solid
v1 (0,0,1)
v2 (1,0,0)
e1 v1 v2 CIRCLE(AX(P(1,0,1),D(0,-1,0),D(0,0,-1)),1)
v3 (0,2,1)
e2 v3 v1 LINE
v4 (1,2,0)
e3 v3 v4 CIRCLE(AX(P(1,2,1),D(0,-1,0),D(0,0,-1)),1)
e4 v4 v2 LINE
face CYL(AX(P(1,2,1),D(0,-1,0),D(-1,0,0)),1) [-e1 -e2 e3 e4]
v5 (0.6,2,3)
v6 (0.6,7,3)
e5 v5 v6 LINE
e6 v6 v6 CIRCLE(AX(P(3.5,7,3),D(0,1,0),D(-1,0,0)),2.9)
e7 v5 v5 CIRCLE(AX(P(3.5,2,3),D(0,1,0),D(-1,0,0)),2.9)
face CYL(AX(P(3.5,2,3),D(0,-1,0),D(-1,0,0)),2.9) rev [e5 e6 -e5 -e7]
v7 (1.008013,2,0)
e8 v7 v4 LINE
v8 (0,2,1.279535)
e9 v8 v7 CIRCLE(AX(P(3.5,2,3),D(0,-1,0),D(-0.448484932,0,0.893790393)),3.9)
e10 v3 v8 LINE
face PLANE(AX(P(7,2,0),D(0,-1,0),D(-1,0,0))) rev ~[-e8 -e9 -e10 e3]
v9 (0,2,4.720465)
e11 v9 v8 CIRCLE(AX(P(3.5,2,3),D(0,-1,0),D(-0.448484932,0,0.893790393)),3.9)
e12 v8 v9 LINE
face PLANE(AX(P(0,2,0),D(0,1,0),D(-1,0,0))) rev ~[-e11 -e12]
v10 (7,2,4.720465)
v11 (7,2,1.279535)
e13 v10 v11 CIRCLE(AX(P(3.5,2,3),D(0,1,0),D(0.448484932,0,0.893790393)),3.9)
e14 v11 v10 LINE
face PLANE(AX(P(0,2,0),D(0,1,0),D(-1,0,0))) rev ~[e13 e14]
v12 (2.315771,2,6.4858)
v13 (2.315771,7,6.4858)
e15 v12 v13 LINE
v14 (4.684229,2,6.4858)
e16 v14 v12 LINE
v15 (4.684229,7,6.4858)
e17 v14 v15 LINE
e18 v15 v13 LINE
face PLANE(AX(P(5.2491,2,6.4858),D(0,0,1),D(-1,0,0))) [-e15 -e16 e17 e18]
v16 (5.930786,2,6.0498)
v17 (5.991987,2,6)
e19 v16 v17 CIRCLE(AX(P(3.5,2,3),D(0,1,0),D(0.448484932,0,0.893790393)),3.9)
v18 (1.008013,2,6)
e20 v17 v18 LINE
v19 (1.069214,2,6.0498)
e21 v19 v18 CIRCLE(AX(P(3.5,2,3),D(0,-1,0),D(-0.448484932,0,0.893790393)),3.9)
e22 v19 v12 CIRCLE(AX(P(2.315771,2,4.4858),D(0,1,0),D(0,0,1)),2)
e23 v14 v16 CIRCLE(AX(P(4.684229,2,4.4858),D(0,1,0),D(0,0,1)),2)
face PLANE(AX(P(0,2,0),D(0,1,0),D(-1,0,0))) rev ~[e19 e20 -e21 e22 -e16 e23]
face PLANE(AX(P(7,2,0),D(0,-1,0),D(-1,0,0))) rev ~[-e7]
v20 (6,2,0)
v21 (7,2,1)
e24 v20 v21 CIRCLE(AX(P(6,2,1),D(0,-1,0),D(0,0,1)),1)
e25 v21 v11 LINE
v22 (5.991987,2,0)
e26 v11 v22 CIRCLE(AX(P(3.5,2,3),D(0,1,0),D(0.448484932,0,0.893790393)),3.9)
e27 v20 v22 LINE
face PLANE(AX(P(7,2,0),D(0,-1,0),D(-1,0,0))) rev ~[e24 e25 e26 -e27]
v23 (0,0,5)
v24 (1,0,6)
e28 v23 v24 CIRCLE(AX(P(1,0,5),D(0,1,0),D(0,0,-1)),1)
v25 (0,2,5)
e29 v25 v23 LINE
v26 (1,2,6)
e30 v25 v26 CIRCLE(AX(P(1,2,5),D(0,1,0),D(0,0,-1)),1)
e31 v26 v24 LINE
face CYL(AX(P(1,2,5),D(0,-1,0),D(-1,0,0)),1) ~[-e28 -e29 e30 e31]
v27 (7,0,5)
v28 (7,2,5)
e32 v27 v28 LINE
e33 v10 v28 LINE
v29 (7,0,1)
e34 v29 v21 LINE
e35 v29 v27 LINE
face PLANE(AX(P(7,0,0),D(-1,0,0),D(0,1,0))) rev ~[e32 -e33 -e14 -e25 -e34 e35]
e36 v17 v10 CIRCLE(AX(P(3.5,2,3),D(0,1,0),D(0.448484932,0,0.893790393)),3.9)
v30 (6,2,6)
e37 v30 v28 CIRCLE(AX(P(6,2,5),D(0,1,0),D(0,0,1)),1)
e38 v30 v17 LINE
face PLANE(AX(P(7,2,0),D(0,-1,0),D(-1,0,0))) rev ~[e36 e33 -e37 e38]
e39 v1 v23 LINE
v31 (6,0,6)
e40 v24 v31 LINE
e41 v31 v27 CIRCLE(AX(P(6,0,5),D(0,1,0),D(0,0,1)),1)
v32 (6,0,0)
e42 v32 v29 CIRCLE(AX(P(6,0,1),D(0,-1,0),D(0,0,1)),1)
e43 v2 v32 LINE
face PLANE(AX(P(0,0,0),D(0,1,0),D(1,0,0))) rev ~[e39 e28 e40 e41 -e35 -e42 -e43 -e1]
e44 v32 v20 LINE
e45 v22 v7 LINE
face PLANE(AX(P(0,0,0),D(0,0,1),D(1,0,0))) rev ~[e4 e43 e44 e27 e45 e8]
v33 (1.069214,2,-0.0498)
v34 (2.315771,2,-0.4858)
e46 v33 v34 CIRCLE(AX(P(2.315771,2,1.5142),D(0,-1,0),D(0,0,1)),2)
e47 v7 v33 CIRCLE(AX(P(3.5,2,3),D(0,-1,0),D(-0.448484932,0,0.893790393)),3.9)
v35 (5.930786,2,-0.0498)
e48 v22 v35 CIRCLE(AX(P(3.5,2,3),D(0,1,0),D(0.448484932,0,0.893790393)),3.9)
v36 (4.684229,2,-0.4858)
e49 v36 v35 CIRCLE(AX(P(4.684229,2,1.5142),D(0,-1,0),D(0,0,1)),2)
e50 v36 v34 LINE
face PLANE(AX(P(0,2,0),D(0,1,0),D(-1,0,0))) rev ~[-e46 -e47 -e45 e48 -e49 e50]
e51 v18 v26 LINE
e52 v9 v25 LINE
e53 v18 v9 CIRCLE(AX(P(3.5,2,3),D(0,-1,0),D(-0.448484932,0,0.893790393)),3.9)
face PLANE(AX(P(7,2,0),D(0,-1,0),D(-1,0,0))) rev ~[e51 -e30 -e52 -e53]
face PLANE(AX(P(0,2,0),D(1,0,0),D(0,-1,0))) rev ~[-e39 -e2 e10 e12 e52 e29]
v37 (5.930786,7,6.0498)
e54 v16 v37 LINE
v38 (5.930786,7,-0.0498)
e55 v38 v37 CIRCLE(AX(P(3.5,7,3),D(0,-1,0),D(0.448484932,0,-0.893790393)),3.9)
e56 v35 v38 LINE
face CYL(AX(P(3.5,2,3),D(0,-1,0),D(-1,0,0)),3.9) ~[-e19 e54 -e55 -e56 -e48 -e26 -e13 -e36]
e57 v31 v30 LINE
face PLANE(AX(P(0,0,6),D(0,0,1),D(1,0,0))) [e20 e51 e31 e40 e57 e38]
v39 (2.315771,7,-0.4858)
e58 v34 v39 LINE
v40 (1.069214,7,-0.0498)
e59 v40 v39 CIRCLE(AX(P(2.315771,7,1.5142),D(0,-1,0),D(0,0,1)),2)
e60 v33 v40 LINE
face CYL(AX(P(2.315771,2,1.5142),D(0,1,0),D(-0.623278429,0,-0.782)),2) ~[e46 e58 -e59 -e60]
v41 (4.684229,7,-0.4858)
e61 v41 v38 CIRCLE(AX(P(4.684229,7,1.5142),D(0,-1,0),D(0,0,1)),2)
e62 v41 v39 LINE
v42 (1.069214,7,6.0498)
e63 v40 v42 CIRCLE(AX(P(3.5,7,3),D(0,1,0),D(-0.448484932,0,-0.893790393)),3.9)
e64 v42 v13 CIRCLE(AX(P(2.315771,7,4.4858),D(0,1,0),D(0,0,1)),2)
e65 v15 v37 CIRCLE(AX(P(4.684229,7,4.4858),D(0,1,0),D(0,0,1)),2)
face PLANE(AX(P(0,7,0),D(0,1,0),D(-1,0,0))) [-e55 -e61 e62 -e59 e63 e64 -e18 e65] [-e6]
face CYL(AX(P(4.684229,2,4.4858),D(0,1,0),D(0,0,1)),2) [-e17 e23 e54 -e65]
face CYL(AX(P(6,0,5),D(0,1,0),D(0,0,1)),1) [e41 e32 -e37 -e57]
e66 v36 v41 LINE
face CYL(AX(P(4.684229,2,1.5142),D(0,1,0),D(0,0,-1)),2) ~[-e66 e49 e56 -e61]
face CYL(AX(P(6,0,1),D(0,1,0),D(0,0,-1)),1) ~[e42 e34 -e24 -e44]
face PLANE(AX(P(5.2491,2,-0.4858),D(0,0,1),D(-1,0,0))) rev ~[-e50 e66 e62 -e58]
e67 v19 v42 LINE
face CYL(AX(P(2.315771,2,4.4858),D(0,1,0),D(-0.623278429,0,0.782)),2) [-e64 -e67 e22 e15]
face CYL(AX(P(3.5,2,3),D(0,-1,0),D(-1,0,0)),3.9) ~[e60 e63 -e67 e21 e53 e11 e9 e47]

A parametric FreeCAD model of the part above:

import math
import FreeCAD as App
import Part
import Sketcher
from FreeCAD import Vector


def edges_at(feature, points):
    """Names of the edges that pass closest to the given points."""
    edges = feature.Shape.Edges
    near = lambda p: min(range(len(edges)), key=lambda i: edges[i].distToShape(Part.Vertex(*p))[0])
    return sorted({f"Edge{near(p) + 1}" for p in points})

doc = App.newDocument("Part")
params = doc.addObject("Spreadsheet::Sheet", "Params")
for row, (alias, value) in enumerate([
    ("sketch1_width", "7 mm"),
    ("sketch1_height", "2 mm"),
    ("pad1_length", "6 mm"),
    ("sketch2_diameter", "5.8 mm"),
    ("sketch2_radius", "3.9 mm"),
    ("pad2_length", "5 mm"),
    ("fillet_radius", "1 mm"),
    ("fillet2_radius", "2 mm"),
], start=1):
    params.set(f"A{row}", alias)
    params.set(f"B{row}", "=" + value)
    params.setAlias(f"B{row}", alias)

body = doc.addObject("PartDesign::Body", "Body")

# Sketch on XY plane
sketch1 = body.newObject("Sketcher::SketchObject", "Sketch")
sketch1.AttachmentSupport = (doc.getObject("XY_Plane"), [""])
sketch1.MapMode = "FlatFace"
sketch1.addGeometry([
    Part.LineSegment(Vector(0, 2, 0), Vector(0, 0, 0)),
    Part.LineSegment(Vector(0, 0, 0), Vector(7, 0, 0)),
    Part.LineSegment(Vector(7, 0, 0), Vector(7, 2, 0)),
    Part.LineSegment(Vector(7, 2, 0), Vector(0, 2, 0)),
], False)
sketch1.addConstraint([
    Sketcher.Constraint("Coincident", 0, 2, 1, 1),
    Sketcher.Constraint("Coincident", 1, 2, 2, 1),
    Sketcher.Constraint("Coincident", 2, 2, 3, 1),
    Sketcher.Constraint("Coincident", 3, 2, 0, 1),
    Sketcher.Constraint("Vertical", 0),
    Sketcher.Constraint("Horizontal", 1),
    Sketcher.Constraint("Vertical", 2),
    Sketcher.Constraint("Horizontal", 3),
    Sketcher.Constraint("Coincident", 0, 2, -1, 1),
    Sketcher.Constraint("DistanceX", 1, 1, 1, 2, 7.0),
    Sketcher.Constraint("DistanceY", 0, 2, 0, 1, 2.0),
])
sketch1.setExpression("Constraints[9]", "Params.sketch1_width")
sketch1.setExpression("Constraints[10]", "Params.sketch1_height")
pad1 = body.newObject("PartDesign::Pad", "Pad")
pad1.Profile = sketch1
pad1.setExpression("Length", "Params.pad1_length")

# Sketch on XZ plane
sketch2 = body.newObject("Sketcher::SketchObject", "Sketch001")
sketch2.AttachmentSupport = (doc.getObject("XZ_Plane"), [""])
sketch2.MapMode = "FlatFace"
sketch2.AttachmentOffset = App.Placement(Vector(0, 0, -2), App.Rotation())
sketch2.addGeometry([
    Part.LineSegment(Vector(5.2491, -0.4858, 0), Vector(1.7509, -0.4858, 0)),  # 0
    Part.ArcOfCircle(Part.Circle(Vector(3.5, 3, 0), Vector(0, 0, 1), 3.9), math.radians(116.64652), math.radians(243.35348)),  # 1
    Part.LineSegment(Vector(1.7509, 6.4858, 0), Vector(5.2491, 6.4858, 0)),  # 2
    Part.ArcOfCircle(Part.Circle(Vector(3.5, 3, 0), Vector(0, 0, 1), 3.9), math.radians(-63.35348), math.radians(63.35348)),  # 3
    Part.Circle(Vector(3.5, 3, 0), Vector(0, 0, 1), 2.9),  # 4
], False)
sketch2.addConstraint([
    Sketcher.Constraint("Coincident", 0, 2, 1, 2),
    Sketcher.Constraint("Coincident", 1, 1, 2, 1),
    Sketcher.Constraint("Coincident", 2, 2, 3, 2),
    Sketcher.Constraint("Coincident", 3, 1, 0, 1),
    Sketcher.Constraint("Horizontal", 0),
    Sketcher.Constraint("Horizontal", 2),
    Sketcher.Constraint("Coincident", 3, 3, 1, 3),
    Sketcher.Constraint("Coincident", 4, 3, 1, 3),
    Sketcher.Constraint("Equal", 1, 3),
    Sketcher.Constraint("Vertical", 0, 2, 1, 1),
    Sketcher.Constraint("Diameter", 4, 5.8),
    Sketcher.Constraint("Radius", 1, 3.9),
    Sketcher.Constraint("DistanceY", -1, 1, 1, 3, 3.0),
    Sketcher.Constraint("DistanceX", -1, 1, 1, 3, 3.5),
    Sketcher.Constraint("DistanceX", 0, 2, 0, 1, 3.4982),
])
sketch2.setExpression("Constraints[10]", "Params.sketch2_diameter")
sketch2.setExpression("Constraints[11]", "Params.sketch2_radius")
pad2 = body.newObject("PartDesign::Pad", "Pad001")
pad2.Profile = sketch2
pad2.setExpression("Length", "Params.pad2_length")
pad2.Reversed = True
doc.recompute()

fillet = body.newObject("PartDesign::Fillet", "Fillet")
fillet.Base = (pad2, edges_at(pad2, [
    (0, 1, 6),
    (0, 1, 0),
    (7, 1, 0),
    (7, 1, 6),
]))
fillet.setExpression("Radius", "Params.fillet_radius")
doc.recompute()

fillet2 = body.newObject("PartDesign::Fillet", "Fillet001")
fillet2.Base = (fillet, edges_at(fillet, [
    (1.751, 4.5, 6.486),
    (5.249, 4.5, 6.486),
    (5.249, 4.5, -0.486),
    (1.751, 4.5, -0.486),
]))
fillet2.setExpression("Radius", "Params.fillet2_radius")

doc.recompute()
